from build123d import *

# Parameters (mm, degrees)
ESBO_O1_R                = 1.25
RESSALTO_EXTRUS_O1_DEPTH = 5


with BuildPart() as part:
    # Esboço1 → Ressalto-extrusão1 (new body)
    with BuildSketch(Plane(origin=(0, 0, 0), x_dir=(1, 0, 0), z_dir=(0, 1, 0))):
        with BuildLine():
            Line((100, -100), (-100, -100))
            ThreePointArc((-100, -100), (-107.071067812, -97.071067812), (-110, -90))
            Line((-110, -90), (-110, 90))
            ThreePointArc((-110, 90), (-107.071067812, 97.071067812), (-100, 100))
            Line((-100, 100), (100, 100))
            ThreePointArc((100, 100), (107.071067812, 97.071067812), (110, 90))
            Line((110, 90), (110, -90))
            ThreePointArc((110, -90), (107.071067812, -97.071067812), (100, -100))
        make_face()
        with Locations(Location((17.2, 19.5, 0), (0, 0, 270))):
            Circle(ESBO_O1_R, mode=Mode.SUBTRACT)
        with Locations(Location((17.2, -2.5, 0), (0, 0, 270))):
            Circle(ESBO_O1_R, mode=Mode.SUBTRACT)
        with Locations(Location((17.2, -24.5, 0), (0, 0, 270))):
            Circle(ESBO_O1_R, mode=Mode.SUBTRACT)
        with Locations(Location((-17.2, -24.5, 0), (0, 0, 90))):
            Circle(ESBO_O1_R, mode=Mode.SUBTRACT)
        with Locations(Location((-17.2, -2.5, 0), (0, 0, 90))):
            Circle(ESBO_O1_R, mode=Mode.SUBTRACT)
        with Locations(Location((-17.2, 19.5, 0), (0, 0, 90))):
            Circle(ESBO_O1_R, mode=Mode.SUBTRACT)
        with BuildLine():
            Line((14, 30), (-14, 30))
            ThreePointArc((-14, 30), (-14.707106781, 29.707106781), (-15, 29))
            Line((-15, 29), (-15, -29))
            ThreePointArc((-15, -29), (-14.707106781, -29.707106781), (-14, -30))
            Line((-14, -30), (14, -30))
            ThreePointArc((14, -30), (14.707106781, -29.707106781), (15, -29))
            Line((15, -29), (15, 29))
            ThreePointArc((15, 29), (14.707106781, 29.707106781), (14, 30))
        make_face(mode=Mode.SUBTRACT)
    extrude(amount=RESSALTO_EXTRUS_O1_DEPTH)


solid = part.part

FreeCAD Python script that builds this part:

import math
import FreeCAD as App
import Part
import Sketcher
from FreeCAD import Vector

doc = App.newDocument("Part")
body = doc.addObject("PartDesign::Body", "Body")

# Sketch on XZ plane
sketch1 = body.newObject("Sketcher::SketchObject", "Sketch")
sketch1.AttachmentSupport = (doc.getObject("XZ_Plane"), [""])
sketch1.MapMode = "FlatFace"
sketch1.addGeometry([
    Part.LineSegment(Vector(-100, 100, 0), Vector(100, 100, 0)),  # 0
    Part.ArcOfCircle(Part.Circle(Vector(100, 90, 0), Vector(0, 0, 1), 10), math.radians(0), math.radians(90)),  # 1
    Part.LineSegment(Vector(110, 90, 0), Vector(110, -90, 0)),  # 2
    Part.ArcOfCircle(Part.Circle(Vector(100, -90, 0), Vector(0, 0, 1), 10), math.radians(-90), math.radians(0)),  # 3
    Part.LineSegment(Vector(100, -100, 0), Vector(-100, -100, 0)),  # 4
    Part.ArcOfCircle(Part.Circle(Vector(-100, -90, 0), Vector(0, 0, 1), 10), math.radians(180), math.radians(270)),  # 5
    Part.LineSegment(Vector(-110, -90, 0), Vector(-110, 90, 0)),  # 6
    Part.ArcOfCircle(Part.Circle(Vector(-100, 90, 0), Vector(0, 0, 1), 10), math.radians(90), math.radians(180)),  # 7
    Part.Circle(Vector(17.2, 24.5, 0), Vector(0, 0, 1), 1.2),  # 8
    Part.Circle(Vector(17.2, 2.5, 0), Vector(0, 0, 1), 1.2),  # 9
    Part.Circle(Vector(-17.2, 24.5, 0), Vector(0, 0, 1), 1.2),  # 10
    Part.Circle(Vector(-17.2, 2.5, 0), Vector(0, 0, 1), 1.2),  # 11
    Part.Circle(Vector(17.2, -19.5, 0), Vector(0, 0, 1), 1.2),  # 12
    Part.ArcOfCircle(Part.Circle(Vector(14, -29, 0), Vector(0, 0, 1), 1), math.radians(-90), math.radians(0)),  # 13
    Part.LineSegment(Vector(15, -29, 0), Vector(15, 29, 0)),  # 14
    Part.ArcOfCircle(Part.Circle(Vector(14, 29, 0), Vector(0, 0, 1), 1), math.radians(0), math.radians(90)),  # 15
    Part.LineSegment(Vector(14, 30, 0), Vector(-14, 30, 0)),  # 16
    Part.ArcOfCircle(Part.Circle(Vector(-14, 29, 0), Vector(0, 0, 1), 1), math.radians(90), math.radians(180)),  # 17
    Part.LineSegment(Vector(-15, 29, 0), Vector(-15, -29, 0)),  # 18
    Part.ArcOfCircle(Part.Circle(Vector(-14, -29, 0), Vector(0, 0, 1), 1), math.radians(-180), math.radians(-90)),  # 19
    Part.LineSegment(Vector(-14, -30, 0), Vector(14, -30, 0)),  # 20
    Part.Circle(Vector(-17.2, -19.5, 0), Vector(0, 0, 1), 1.2),  # 21
], False)
sketch1.addConstraint([
    Sketcher.Constraint("Tangent", 0, 2, 1, 2),
    Sketcher.Constraint("Tangent", 1, 1, 2, 1),
    Sketcher.Constraint("Tangent", 2, 2, 3, 2),
    Sketcher.Constraint("Tangent", 3, 1, 4, 1),
    Sketcher.Constraint("Tangent", 4, 2, 5, 2),
    Sketcher.Constraint("Tangent", 5, 1, 6, 1),
    Sketcher.Constraint("Tangent", 6, 2, 7, 2),
    Sketcher.Constraint("Tangent", 7, 1, 0, 1),
    Sketcher.Constraint("Tangent", 13, 2, 14, 1),
    Sketcher.Constraint("Tangent", 14, 2, 15, 1),
    Sketcher.Constraint("Tangent", 15, 2, 16, 1),
    Sketcher.Constraint("Tangent", 16, 2, 17, 1),
    Sketcher.Constraint("Tangent", 17, 2, 18, 1),
    Sketcher.Constraint("Tangent", 18, 2, 19, 1),
    Sketcher.Constraint("Tangent", 19, 2, 20, 1),
    Sketcher.Constraint("Tangent", 20, 2, 13, 1),
    Sketcher.Constraint("Horizontal", 0),
    Sketcher.Constraint("Vertical", 2),
    Sketcher.Constraint("Horizontal", 4),
    Sketcher.Constraint("Vertical", 6),
    Sketcher.Constraint("Vertical", 14),
    Sketcher.Constraint("Horizontal", 16),
    Sketcher.Constraint("Vertical", 18),
    Sketcher.Constraint("Horizontal", 20),
    Sketcher.Constraint("Equal", 1, 3),
    Sketcher.Constraint("Equal", 3, 5),
    Sketcher.Constraint("Equal", 5, 7),
    Sketcher.Constraint("Equal", 8, 9),
    Sketcher.Constraint("Equal", 9, 10),
    Sketcher.Constraint("Equal", 10, 11),
    Sketcher.Constraint("Equal", 11, 12),
    Sketcher.Constraint("Equal", 13, 15),
    Sketcher.Constraint("Equal", 15, 17),
    Sketcher.Constraint("Equal", 17, 19),
    Sketcher.Constraint("Equal", 12, 21),
    Sketcher.Constraint("Symmetric", 1, 3, 5, 3, -1, 1),
    Sketcher.Constraint("Symmetric", 13, 3, 17, 3, -1, 1),
    Sketcher.Constraint("Symmetric", 8, 3, 10, 3, -2),
    Sketcher.Constraint("Symmetric", 9, 3, 11, 3, -2),
    Sketcher.Constraint("Symmetric", 12, 3, 21, 3, -2),
    Sketcher.Constraint("Vertical", 8, 3, 9, 3),
    Sketcher.Constraint("Vertical", 9, 3, 12, 3),
    Sketcher.Constraint("Radius", 1, 10.0),
    Sketcher.Constraint("Radius", 13, 1.0),
    Sketcher.Constraint("Diameter", 8, 2.5),
    Sketcher.Constraint("DistanceX", 0, 1, 0, 2, 200.0),
    Sketcher.Constraint("DistanceX", 16, 2, 16, 1, 28.0),
    Sketcher.Constraint("DistanceY", 2, 2, 2, 1, 180.0),
    Sketcher.Constraint("DistanceY", 14, 1, 14, 2, 58.0),
    Sketcher.Constraint("DistanceY", 9, 3, 8, 3, 22.0),
    Sketcher.Constraint("DistanceY", 12, 3, 9, 3, 22.0),
    Sketcher.Constraint("DistanceX", -1, 1, 8, 3, 17.2),
    Sketcher.Constraint("DistanceY", -1, 1, 8, 3, 24.5),
])
pad1 = body.newObject("PartDesign::Pad", "Pad")
pad1.Profile = sketch1
pad1.Length = 5
pad1.Reversed = True

doc.recompute()
